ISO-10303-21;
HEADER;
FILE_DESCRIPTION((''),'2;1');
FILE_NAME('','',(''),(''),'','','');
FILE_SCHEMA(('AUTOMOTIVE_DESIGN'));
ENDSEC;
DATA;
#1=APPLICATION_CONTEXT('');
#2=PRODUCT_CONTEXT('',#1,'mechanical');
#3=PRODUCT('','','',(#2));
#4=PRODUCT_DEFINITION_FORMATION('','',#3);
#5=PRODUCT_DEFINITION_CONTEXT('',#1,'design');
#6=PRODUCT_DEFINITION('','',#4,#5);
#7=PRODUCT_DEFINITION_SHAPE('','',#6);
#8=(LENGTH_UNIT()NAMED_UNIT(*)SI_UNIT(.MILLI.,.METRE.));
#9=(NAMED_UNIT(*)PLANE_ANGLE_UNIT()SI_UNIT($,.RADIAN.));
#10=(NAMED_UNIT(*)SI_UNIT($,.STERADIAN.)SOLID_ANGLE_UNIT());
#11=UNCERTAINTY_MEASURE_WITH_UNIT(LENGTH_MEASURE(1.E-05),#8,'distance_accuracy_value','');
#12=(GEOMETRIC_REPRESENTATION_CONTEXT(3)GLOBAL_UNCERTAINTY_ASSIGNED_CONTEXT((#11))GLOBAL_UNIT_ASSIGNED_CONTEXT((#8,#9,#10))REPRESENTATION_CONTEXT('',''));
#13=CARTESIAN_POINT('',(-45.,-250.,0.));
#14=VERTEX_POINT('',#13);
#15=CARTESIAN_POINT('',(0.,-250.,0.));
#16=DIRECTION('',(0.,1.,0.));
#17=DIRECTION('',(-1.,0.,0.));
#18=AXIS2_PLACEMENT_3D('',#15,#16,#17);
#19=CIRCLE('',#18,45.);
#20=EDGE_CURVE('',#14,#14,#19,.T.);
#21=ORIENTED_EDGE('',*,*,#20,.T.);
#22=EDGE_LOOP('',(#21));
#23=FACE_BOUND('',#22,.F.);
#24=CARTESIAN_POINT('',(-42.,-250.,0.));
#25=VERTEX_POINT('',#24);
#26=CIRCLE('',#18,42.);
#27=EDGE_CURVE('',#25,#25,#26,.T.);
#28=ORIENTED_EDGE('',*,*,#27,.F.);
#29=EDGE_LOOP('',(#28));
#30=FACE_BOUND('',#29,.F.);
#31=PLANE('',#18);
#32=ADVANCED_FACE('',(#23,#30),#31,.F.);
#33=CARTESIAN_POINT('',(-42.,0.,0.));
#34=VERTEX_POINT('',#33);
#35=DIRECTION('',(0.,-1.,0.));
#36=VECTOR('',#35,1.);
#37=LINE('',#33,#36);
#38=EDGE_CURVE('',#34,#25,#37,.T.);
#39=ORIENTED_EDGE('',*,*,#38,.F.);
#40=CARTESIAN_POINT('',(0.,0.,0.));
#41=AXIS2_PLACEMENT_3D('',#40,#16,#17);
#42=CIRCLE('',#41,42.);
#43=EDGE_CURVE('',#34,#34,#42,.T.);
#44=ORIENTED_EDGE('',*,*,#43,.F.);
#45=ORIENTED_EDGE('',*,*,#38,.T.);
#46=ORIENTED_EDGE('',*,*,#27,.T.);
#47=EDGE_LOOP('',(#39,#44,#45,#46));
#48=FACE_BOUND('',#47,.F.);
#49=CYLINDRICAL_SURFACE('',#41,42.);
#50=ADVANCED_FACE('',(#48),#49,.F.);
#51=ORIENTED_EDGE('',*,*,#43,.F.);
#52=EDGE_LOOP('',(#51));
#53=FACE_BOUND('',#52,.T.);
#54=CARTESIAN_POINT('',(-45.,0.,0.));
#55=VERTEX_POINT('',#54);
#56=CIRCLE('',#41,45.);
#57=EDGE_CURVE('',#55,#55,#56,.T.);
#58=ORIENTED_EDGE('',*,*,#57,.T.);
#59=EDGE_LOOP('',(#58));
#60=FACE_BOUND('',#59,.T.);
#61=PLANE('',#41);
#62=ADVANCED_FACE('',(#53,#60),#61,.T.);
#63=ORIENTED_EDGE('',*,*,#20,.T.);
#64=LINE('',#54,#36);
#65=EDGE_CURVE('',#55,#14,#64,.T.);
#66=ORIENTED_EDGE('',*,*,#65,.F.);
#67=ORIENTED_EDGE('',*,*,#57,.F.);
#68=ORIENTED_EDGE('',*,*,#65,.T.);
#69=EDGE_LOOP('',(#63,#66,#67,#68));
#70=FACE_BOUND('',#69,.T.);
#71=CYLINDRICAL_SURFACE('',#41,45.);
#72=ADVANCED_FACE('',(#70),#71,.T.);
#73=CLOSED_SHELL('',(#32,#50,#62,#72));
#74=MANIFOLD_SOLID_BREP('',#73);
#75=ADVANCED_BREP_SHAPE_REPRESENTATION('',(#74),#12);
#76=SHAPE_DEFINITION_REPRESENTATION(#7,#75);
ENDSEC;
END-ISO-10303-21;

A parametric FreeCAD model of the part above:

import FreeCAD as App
import Part
import Sketcher
from FreeCAD import Vector
Q = App.Units.Quantity

doc = App.newDocument("Part")
body = doc.addObject("PartDesign::Body", "Body")

# Sketch on XZ plane
sketch1 = doc.addObject("Sketcher::SketchObject", "Sketch")
body.addObject(sketch1)
sketch1.AttachmentSupport = (doc.XZ_Plane, [""])
sketch1.MapMode = "FlatFace"
sketch1.addGeometry([
    Part.Circle(Vector(0, 0, 0), Vector(0, 0, 1), 45),
    Part.Circle(Vector(0, 0, 0), Vector(0, 0, 1), 42),
], False)
sketch1.addConstraint([
    Sketcher.Constraint("Coincident", 0, 3, -1, 1),
    Sketcher.Constraint("Coincident", 1, 3, -1, 1),
    Sketcher.Constraint("Diameter", 0, Q("90 mm")),
    Sketcher.Constraint("Diameter", 1, Q("84 mm")),
])
pad1 = doc.addObject("PartDesign::Pad", "Pad")
body.addObject(pad1)
pad1.Profile = sketch1
pad1.Length = 250

doc.recompute()
